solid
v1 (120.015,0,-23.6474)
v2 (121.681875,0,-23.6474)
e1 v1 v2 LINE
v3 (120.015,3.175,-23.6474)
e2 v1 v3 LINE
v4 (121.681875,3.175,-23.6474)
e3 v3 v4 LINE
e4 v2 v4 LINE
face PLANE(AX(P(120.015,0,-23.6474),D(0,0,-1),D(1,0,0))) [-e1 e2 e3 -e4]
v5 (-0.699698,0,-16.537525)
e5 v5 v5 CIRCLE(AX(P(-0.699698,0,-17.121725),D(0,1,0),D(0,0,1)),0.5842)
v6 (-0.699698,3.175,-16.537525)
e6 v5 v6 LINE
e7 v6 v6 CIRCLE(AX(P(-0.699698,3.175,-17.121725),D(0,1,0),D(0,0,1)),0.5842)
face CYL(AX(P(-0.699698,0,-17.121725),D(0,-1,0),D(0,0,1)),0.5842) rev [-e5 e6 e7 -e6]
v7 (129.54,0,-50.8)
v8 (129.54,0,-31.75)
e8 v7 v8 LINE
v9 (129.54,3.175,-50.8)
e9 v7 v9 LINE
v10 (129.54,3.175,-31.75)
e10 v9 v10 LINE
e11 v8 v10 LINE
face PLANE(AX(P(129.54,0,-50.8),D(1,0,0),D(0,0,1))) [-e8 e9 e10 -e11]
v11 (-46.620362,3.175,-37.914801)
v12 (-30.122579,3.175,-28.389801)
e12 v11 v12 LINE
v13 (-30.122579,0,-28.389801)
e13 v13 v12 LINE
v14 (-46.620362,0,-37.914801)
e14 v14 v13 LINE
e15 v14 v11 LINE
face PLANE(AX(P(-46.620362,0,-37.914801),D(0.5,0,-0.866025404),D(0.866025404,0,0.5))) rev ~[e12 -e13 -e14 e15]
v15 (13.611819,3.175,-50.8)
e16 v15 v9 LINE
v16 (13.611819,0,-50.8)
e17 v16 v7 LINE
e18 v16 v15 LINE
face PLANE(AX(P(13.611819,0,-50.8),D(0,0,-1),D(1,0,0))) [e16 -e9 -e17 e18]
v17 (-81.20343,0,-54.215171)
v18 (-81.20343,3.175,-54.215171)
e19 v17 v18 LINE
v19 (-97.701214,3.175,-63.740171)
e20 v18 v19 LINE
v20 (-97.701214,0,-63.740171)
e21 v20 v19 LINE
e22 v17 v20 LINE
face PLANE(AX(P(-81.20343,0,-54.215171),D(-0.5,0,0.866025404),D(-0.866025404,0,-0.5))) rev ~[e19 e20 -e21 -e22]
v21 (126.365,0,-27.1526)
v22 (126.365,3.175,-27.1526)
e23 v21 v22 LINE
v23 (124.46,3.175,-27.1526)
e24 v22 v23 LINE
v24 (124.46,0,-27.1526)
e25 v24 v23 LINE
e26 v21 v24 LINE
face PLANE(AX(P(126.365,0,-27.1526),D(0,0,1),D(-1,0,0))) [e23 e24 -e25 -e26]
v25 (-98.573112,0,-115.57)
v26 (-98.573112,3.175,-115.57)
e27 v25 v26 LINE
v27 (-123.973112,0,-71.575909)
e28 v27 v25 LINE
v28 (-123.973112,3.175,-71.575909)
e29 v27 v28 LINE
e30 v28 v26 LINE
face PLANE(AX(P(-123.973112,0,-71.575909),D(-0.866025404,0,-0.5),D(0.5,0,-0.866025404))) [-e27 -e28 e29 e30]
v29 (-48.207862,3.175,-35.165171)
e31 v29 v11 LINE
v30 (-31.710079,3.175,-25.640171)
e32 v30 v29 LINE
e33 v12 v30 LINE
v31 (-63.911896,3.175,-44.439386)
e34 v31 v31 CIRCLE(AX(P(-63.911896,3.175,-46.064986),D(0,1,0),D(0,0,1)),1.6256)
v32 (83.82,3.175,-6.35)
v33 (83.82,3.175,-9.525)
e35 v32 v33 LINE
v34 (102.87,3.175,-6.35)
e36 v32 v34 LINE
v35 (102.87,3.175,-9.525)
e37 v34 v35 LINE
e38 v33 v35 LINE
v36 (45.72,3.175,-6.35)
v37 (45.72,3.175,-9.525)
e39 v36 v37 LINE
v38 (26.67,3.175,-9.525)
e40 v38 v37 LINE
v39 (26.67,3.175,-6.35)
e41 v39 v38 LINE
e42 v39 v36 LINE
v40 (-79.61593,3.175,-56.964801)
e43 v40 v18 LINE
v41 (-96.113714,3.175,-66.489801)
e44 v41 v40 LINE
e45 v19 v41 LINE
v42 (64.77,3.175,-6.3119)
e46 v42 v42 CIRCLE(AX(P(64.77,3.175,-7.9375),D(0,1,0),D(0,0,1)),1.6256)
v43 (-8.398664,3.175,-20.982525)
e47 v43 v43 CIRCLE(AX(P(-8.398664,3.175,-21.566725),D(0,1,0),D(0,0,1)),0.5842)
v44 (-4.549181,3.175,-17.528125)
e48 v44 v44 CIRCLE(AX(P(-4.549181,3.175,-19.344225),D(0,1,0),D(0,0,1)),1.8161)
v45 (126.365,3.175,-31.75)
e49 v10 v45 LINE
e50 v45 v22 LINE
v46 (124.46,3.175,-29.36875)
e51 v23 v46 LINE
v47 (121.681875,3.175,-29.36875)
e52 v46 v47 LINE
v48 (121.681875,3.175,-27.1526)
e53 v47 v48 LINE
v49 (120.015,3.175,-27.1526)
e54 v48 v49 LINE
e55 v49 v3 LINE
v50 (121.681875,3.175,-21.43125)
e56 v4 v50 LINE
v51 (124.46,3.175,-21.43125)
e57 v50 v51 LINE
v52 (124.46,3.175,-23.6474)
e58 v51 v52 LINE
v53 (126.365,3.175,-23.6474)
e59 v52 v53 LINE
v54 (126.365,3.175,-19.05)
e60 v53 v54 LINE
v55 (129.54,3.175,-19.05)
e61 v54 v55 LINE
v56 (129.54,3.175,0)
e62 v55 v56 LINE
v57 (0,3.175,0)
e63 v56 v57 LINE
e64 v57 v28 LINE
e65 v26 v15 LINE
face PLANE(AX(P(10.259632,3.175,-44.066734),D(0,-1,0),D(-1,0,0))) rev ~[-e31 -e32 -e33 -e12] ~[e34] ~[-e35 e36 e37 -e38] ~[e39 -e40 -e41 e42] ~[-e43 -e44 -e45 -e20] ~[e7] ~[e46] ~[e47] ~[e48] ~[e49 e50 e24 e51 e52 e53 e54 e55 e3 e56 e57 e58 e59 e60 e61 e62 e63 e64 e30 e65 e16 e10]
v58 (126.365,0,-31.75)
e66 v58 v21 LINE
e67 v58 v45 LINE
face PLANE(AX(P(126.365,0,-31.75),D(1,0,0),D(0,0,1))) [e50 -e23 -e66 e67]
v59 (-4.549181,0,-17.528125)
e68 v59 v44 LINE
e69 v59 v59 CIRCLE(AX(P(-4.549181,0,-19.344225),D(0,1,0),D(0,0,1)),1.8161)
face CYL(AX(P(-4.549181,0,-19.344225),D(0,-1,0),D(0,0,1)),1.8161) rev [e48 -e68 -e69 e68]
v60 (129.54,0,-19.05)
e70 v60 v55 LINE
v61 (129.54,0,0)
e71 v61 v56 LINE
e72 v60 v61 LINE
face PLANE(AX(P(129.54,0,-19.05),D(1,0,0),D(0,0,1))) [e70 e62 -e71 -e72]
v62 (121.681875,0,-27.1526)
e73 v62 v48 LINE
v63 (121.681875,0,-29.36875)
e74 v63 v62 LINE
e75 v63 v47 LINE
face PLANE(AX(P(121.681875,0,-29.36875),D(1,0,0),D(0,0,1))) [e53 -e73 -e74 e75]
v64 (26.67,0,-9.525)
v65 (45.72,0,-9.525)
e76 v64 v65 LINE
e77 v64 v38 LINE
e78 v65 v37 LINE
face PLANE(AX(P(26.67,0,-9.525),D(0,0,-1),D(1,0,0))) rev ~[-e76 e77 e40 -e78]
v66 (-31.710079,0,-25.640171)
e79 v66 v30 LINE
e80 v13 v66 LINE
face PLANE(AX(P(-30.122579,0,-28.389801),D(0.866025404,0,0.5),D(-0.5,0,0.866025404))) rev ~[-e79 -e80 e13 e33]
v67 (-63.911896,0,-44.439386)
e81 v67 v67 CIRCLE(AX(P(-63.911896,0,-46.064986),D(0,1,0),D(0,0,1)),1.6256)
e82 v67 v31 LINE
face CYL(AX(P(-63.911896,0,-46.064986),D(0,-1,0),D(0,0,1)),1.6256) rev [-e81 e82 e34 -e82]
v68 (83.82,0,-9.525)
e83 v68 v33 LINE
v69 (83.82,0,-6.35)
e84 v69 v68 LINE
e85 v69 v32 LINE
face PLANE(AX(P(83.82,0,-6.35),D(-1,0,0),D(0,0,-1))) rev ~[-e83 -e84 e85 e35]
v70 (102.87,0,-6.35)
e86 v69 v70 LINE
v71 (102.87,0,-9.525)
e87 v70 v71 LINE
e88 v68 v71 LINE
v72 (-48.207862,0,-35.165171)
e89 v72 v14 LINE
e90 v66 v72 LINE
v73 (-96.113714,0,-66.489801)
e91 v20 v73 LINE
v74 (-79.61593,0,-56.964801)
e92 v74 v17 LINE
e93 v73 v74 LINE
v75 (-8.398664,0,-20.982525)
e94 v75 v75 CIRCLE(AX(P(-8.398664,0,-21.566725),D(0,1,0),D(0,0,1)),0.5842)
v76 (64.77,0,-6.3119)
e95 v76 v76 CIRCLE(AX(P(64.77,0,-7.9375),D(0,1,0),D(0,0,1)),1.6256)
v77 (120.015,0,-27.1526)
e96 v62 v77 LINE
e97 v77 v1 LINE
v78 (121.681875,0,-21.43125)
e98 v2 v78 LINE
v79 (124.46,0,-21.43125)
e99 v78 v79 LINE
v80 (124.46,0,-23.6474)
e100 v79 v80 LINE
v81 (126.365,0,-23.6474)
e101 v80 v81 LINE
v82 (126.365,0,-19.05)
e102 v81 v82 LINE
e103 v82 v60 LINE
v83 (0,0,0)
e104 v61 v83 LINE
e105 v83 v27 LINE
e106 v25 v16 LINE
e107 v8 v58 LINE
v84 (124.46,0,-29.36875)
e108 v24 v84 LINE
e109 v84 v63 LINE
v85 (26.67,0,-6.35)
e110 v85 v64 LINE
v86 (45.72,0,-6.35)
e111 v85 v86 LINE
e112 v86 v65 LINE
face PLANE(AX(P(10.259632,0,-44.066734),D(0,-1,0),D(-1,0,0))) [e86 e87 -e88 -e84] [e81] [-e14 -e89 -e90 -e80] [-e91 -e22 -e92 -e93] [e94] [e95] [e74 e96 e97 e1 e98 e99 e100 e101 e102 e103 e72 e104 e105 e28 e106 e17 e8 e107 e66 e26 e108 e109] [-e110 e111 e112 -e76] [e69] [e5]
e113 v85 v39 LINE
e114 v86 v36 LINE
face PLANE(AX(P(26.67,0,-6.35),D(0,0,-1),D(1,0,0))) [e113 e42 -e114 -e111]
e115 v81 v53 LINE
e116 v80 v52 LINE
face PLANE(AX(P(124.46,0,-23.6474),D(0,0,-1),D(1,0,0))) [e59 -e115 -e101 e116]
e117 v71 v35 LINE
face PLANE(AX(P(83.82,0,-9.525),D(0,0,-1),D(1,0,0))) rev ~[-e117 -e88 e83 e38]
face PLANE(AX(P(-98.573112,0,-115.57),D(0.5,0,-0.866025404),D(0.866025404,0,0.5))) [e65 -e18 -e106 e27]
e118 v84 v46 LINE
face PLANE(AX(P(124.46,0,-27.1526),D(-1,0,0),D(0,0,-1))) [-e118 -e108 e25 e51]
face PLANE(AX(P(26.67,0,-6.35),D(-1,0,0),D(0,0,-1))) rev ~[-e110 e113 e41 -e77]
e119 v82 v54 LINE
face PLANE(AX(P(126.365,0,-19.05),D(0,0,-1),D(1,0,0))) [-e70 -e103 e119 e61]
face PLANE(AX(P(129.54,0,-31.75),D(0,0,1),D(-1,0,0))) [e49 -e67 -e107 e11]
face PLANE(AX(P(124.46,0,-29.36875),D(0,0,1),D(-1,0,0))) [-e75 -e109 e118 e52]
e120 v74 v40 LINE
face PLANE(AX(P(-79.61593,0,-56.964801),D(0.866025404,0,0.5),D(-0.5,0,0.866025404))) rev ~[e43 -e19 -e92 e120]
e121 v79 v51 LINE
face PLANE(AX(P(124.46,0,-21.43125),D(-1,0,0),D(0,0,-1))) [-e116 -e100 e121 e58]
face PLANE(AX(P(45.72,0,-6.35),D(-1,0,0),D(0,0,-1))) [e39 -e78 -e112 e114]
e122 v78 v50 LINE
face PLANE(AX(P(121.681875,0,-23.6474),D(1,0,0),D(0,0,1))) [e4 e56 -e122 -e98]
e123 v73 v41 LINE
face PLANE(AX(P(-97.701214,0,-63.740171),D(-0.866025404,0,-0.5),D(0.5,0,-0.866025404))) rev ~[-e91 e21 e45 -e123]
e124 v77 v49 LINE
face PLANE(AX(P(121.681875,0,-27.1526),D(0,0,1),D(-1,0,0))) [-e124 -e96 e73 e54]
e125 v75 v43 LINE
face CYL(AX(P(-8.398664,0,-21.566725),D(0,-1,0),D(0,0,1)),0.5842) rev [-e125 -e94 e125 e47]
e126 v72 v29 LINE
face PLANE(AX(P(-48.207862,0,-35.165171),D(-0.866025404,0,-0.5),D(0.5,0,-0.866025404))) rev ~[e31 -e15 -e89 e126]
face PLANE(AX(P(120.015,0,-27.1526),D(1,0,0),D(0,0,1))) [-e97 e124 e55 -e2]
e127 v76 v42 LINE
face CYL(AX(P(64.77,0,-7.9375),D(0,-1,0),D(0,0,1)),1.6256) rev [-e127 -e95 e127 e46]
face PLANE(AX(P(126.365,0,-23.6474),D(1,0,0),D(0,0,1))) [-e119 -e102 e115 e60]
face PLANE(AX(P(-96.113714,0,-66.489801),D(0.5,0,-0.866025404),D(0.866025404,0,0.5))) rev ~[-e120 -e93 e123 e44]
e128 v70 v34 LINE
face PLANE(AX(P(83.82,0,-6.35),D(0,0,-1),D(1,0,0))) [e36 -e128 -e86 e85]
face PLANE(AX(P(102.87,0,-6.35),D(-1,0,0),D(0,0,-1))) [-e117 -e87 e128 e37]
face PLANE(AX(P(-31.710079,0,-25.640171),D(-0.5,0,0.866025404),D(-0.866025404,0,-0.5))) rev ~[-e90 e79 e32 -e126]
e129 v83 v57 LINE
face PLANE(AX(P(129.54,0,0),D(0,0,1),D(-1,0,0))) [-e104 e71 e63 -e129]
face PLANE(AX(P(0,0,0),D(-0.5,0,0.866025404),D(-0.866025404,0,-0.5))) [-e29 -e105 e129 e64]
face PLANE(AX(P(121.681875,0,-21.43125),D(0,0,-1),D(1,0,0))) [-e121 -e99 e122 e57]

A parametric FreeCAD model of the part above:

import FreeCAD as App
import Part
import Sketcher
Q = App.Units.Quantity

doc = App.newDocument("Part")
body = doc.addObject("PartDesign::Body", "Body")

# Sketch on XZ plane
sketch1 = body.newObject("Sketcher::SketchObject", "Sketch")
sketch1.AttachmentSupport = (doc.getObject("XZ_Plane"), [""])
sketch1.MapMode = "FlatFace"
sketch1.addGeometry(Part.LineSegment(App.Vector(129.5, -50.8, 0), App.Vector(13.6, -50.8, 0)), False)
sketch1.addGeometry(Part.LineSegment(App.Vector(13.6, -50.8, 0), App.Vector(-98.6, -115.6, 0)), False)
sketch1.addGeometry(Part.LineSegment(App.Vector(-98.6, -115.6, 0), App.Vector(-124, -71.6, 0)), False)
sketch1.addGeometry(Part.LineSegment(App.Vector(-124, -71.6, 0), App.Vector(0, 0, 0)), False)
sketch1.addGeometry(Part.LineSegment(App.Vector(0, 0, 0), App.Vector(129.5, 0, 0)), False)
sketch1.addGeometry(Part.LineSegment(App.Vector(129.5, 0, 0), App.Vector(129.5, -19.1, 0)), False)
sketch1.addGeometry(Part.LineSegment(App.Vector(129.5, -19.1, 0), App.Vector(126.4, -19.1, 0)), False)
sketch1.addGeometry(Part.LineSegment(App.Vector(126.4, -19.1, 0), App.Vector(126.4, -23.6, 0)), False)
sketch1.addGeometry(Part.LineSegment(App.Vector(126.4, -23.6, 0), App.Vector(124.5, -23.6, 0)), False)
sketch1.addGeometry(Part.LineSegment(App.Vector(124.5, -23.6, 0), App.Vector(124.5, -21.4, 0)), False)
sketch1.addGeometry(Part.LineSegment(App.Vector(124.5, -21.4, 0), App.Vector(121.7, -21.4, 0)), False)
sketch1.addGeometry(Part.LineSegment(App.Vector(121.7, -21.4, 0), App.Vector(121.7, -23.6, 0)), False)
sketch1.addGeometry(Part.LineSegment(App.Vector(121.7, -23.6, 0), App.Vector(120, -23.6, 0)), False)
sketch1.addGeometry(Part.LineSegment(App.Vector(120, -23.6, 0), App.Vector(120, -27.2, 0)), False)
sketch1.addGeometry(Part.LineSegment(App.Vector(120, -27.2, 0), App.Vector(121.7, -27.2, 0)), False)
sketch1.addGeometry(Part.LineSegment(App.Vector(121.7, -27.2, 0), App.Vector(121.7, -29.4, 0)), False)
sketch1.addGeometry(Part.LineSegment(App.Vector(121.7, -29.4, 0), App.Vector(124.5, -29.4, 0)), False)
sketch1.addGeometry(Part.LineSegment(App.Vector(124.5, -29.4, 0), App.Vector(124.5, -27.2, 0)), False)
sketch1.addGeometry(Part.LineSegment(App.Vector(124.5, -27.2, 0), App.Vector(126.4, -27.2, 0)), False)
sketch1.addGeometry(Part.LineSegment(App.Vector(126.4, -27.2, 0), App.Vector(126.4, -31.8, 0)), False)
sketch1.addGeometry(Part.LineSegment(App.Vector(126.4, -31.8, 0), App.Vector(129.5, -31.8, 0)), False)
sketch1.addGeometry(Part.LineSegment(App.Vector(129.5, -31.8, 0), App.Vector(129.5, -50.8, 0)), False)
sketch1.addGeometry(Part.LineSegment(App.Vector(83.8, -6.3, 0), App.Vector(83.8, -9.5, 0)), False)
sketch1.addGeometry(Part.LineSegment(App.Vector(83.8, -9.5, 0), App.Vector(102.9, -9.5, 0)), False)
sketch1.addGeometry(Part.LineSegment(App.Vector(102.9, -9.5, 0), App.Vector(102.9, -6.3, 0)), False)
sketch1.addGeometry(Part.LineSegment(App.Vector(102.9, -6.3, 0), App.Vector(83.8, -6.3, 0)), False)
sketch1.addGeometry(Part.Circle(App.Vector(64.8, -7.9, 0), App.Vector(0, 0, 1), 1.6), False)
sketch1.addGeometry(Part.LineSegment(App.Vector(26.7, -6.3, 0), App.Vector(26.7, -9.5, 0)), False)
sketch1.addGeometry(Part.LineSegment(App.Vector(26.7, -9.5, 0), App.Vector(45.7, -9.5, 0)), False)
sketch1.addGeometry(Part.LineSegment(App.Vector(45.7, -9.5, 0), App.Vector(45.7, -6.3, 0)), False)
sketch1.addGeometry(Part.LineSegment(App.Vector(45.7, -6.3, 0), App.Vector(26.7, -6.3, 0)), False)
sketch1.addGeometry(Part.Circle(App.Vector(-0.7, -17.1, 0), App.Vector(0, 0, 1), 0.6), False)
sketch1.addGeometry(Part.Circle(App.Vector(-4.5, -19.3, 0), App.Vector(0, 0, 1), 1.8), False)
sketch1.addGeometry(Part.Circle(App.Vector(-8.4, -21.6, 0), App.Vector(0, 0, 1), 0.6), False)
sketch1.addGeometry(Part.LineSegment(App.Vector(-46.6, -37.9, 0), App.Vector(-30.1, -28.4, 0)), False)
sketch1.addGeometry(Part.LineSegment(App.Vector(-30.1, -28.4, 0), App.Vector(-31.7, -25.6, 0)), False)
sketch1.addGeometry(Part.LineSegment(App.Vector(-31.7, -25.6, 0), App.Vector(-48.2, -35.2, 0)), False)
sketch1.addGeometry(Part.LineSegment(App.Vector(-48.2, -35.2, 0), App.Vector(-46.6, -37.9, 0)), False)
sketch1.addGeometry(Part.Circle(App.Vector(-63.9, -46.1, 0), App.Vector(0, 0, 1), 1.6), False)
sketch1.addGeometry(Part.LineSegment(App.Vector(-96.1, -66.5, 0), App.Vector(-79.6, -57, 0)), False)
sketch1.addGeometry(Part.LineSegment(App.Vector(-79.6, -57, 0), App.Vector(-81.2, -54.2, 0)), False)
sketch1.addGeometry(Part.LineSegment(App.Vector(-81.2, -54.2, 0), App.Vector(-97.7, -63.7, 0)), False)
sketch1.addGeometry(Part.LineSegment(App.Vector(-97.7, -63.7, 0), App.Vector(-96.1, -66.5, 0)), False)
sketch1.addConstraint(Sketcher.Constraint("Coincident", 0, 2, 1, 1))
sketch1.addConstraint(Sketcher.Constraint("Coincident", 1, 2, 2, 1))
sketch1.addConstraint(Sketcher.Constraint("Coincident", 2, 2, 3, 1))
sketch1.addConstraint(Sketcher.Constraint("Coincident", 3, 2, 4, 1))
sketch1.addConstraint(Sketcher.Constraint("Coincident", 4, 2, 5, 1))
sketch1.addConstraint(Sketcher.Constraint("Coincident", 5, 2, 6, 1))
sketch1.addConstraint(Sketcher.Constraint("Coincident", 6, 2, 7, 1))
sketch1.addConstraint(Sketcher.Constraint("Coincident", 7, 2, 8, 1))
sketch1.addConstraint(Sketcher.Constraint("Coincident", 8, 2, 9, 1))
sketch1.addConstraint(Sketcher.Constraint("Coincident", 9, 2, 10, 1))
sketch1.addConstraint(Sketcher.Constraint("Coincident", 10, 2, 11, 1))
sketch1.addConstraint(Sketcher.Constraint("Coincident", 11, 2, 12, 1))
sketch1.addConstraint(Sketcher.Constraint("Coincident", 12, 2, 13, 1))
sketch1.addConstraint(Sketcher.Constraint("Coincident", 13, 2, 14, 1))
sketch1.addConstraint(Sketcher.Constraint("Coincident", 14, 2, 15, 1))
sketch1.addConstraint(Sketcher.Constraint("Coincident", 15, 2, 16, 1))
sketch1.addConstraint(Sketcher.Constraint("Coincident", 16, 2, 17, 1))
sketch1.addConstraint(Sketcher.Constraint("Coincident", 17, 2, 18, 1))
sketch1.addConstraint(Sketcher.Constraint("Coincident", 18, 2, 19, 1))
sketch1.addConstraint(Sketcher.Constraint("Coincident", 19, 2, 20, 1))
sketch1.addConstraint(Sketcher.Constraint("Coincident", 20, 2, 21, 1))
sketch1.addConstraint(Sketcher.Constraint("Coincident", 21, 2, 0, 1))
sketch1.addConstraint(Sketcher.Constraint("Coincident", 22, 2, 23, 1))
sketch1.addConstraint(Sketcher.Constraint("Coincident", 23, 2, 24, 1))
sketch1.addConstraint(Sketcher.Constraint("Coincident", 24, 2, 25, 1))
sketch1.addConstraint(Sketcher.Constraint("Coincident", 25, 2, 22, 1))
sketch1.addConstraint(Sketcher.Constraint("Coincident", 27, 2, 28, 1))
sketch1.addConstraint(Sketcher.Constraint("Coincident", 28, 2, 29, 1))
sketch1.addConstraint(Sketcher.Constraint("Coincident", 29, 2, 30, 1))
sketch1.addConstraint(Sketcher.Constraint("Coincident", 30, 2, 27, 1))
sketch1.addConstraint(Sketcher.Constraint("Coincident", 34, 2, 35, 1))
sketch1.addConstraint(Sketcher.Constraint("Coincident", 35, 2, 36, 1))
sketch1.addConstraint(Sketcher.Constraint("Coincident", 36, 2, 37, 1))
sketch1.addConstraint(Sketcher.Constraint("Coincident", 37, 2, 34, 1))
sketch1.addConstraint(Sketcher.Constraint("Coincident", 39, 2, 40, 1))
sketch1.addConstraint(Sketcher.Constraint("Coincident", 40, 2, 41, 1))
sketch1.addConstraint(Sketcher.Constraint("Coincident", 41, 2, 42, 1))
sketch1.addConstraint(Sketcher.Constraint("Coincident", 42, 2, 39, 1))
sketch1.addConstraint(Sketcher.Constraint("Horizontal", 0))
sketch1.addConstraint(Sketcher.Constraint("Horizontal", 4))
sketch1.addConstraint(Sketcher.Constraint("Vertical", 5))
sketch1.addConstraint(Sketcher.Constraint("Horizontal", 6))
sketch1.addConstraint(Sketcher.Constraint("Vertical", 7))
sketch1.addConstraint(Sketcher.Constraint("Horizontal", 8))
sketch1.addConstraint(Sketcher.Constraint("Vertical", 9))
sketch1.addConstraint(Sketcher.Constraint("Horizontal", 10))
sketch1.addConstraint(Sketcher.Constraint("Vertical", 11))
sketch1.addConstraint(Sketcher.Constraint("Horizontal", 12))
sketch1.addConstraint(Sketcher.Constraint("Vertical", 13))
sketch1.addConstraint(Sketcher.Constraint("Horizontal", 14))
sketch1.addConstraint(Sketcher.Constraint("Vertical", 15))
sketch1.addConstraint(Sketcher.Constraint("Horizontal", 16))
sketch1.addConstraint(Sketcher.Constraint("Vertical", 17))
sketch1.addConstraint(Sketcher.Constraint("Horizontal", 18))
sketch1.addConstraint(Sketcher.Constraint("Vertical", 19))
sketch1.addConstraint(Sketcher.Constraint("Horizontal", 20))
sketch1.addConstraint(Sketcher.Constraint("Vertical", 21))
sketch1.addConstraint(Sketcher.Constraint("Vertical", 22))
sketch1.addConstraint(Sketcher.Constraint("Horizontal", 23))
sketch1.addConstraint(Sketcher.Constraint("Vertical", 24))
sketch1.addConstraint(Sketcher.Constraint("Horizontal", 25))
sketch1.addConstraint(Sketcher.Constraint("Vertical", 27))
sketch1.addConstraint(Sketcher.Constraint("Horizontal", 28))
sketch1.addConstraint(Sketcher.Constraint("Vertical", 29))
sketch1.addConstraint(Sketcher.Constraint("Horizontal", 30))
sketch1.addConstraint(Sketcher.Constraint("Coincident", 3, 2, -1, 1))
sketch1.addConstraint(Sketcher.Constraint("Equal", 31, 33))
sketch1.addConstraint(Sketcher.Constraint("Equal", 26, 38))
sketch1.addConstraint(Sketcher.Constraint("Perpendicular", 1, 2))
sketch1.addConstraint(Sketcher.Constraint("Perpendicular", 2, 3))
sketch1.addConstraint(Sketcher.Constraint("Parallel", 3, 34))
sketch1.addConstraint(Sketcher.Constraint("Perpendicular", 34, 35))
sketch1.addConstraint(Sketcher.Constraint("Perpendicular", 35, 36))
sketch1.addConstraint(Sketcher.Constraint("Perpendicular", 36, 37))
sketch1.addConstraint(Sketcher.Constraint("Perpendicular", 37, 39))
sketch1.addConstraint(Sketcher.Constraint("Perpendicular", 39, 40))
sketch1.addConstraint(Sketcher.Constraint("Perpendicular", 40, 41))
sketch1.addConstraint(Sketcher.Constraint("Perpendicular", 41, 42))
sketch1.addConstraint(Sketcher.Constraint("Horizontal", 8, 2, 11, 2))
sketch1.addConstraint(Sketcher.Constraint("Horizontal", 14, 2, 17, 2))
sketch1.addConstraint(Sketcher.Constraint("Horizontal", 23, 2, 27, 2))
sketch1.addConstraint(Sketcher.Constraint("Horizontal", 25, 2, 29, 2))
sketch1.addConstraint(Sketcher.Constraint("Vertical", 11, 2, 14, 2))
sketch1.addConstraint(Sketcher.Constraint("Vertical", 9, 2, 16, 2))
sketch1.addConstraint(Sketcher.Constraint("Vertical", 7, 2, 18, 2))
sketch1.addConstraint(Sketcher.Constraint("Vertical", 5, 2, 20, 2))
sketch1.addConstraint(Sketcher.Constraint("Equal", 25, 28))
sketch1.addConstraint(Sketcher.Constraint("Equal", 30, 5))
sketch1.addConstraint(Sketcher.Constraint("Equal", 11, 15))
sketch1.addConstraint(Sketcher.Constraint("Equal", 7, 19))
sketch1.addConstraint(Sketcher.Constraint("Equal", 5, 21))
sketch1.addConstraint(Sketcher.Constraint("Equal", 20, 22))
sketch1.addConstraint(Sketcher.Constraint("Equal", 36, 39))
sketch1.addConstraint(Sketcher.Constraint("Equal", 37, 40))
sketch1.addConstraint(Sketcher.Constraint("Distance", 2, Q("2 in")))
sketch1.addConstraint(Sketcher.Constraint("Diameter", 26, Q("0.128 in")))
sketch1.addConstraint(Sketcher.Constraint("Diameter", 31, Q("0.046 in")))
sketch1.addConstraint(Sketcher.Constraint("Diameter", 32, Q("0.143 in")))
sketch1.addConstraint(Sketcher.Constraint("DistanceX", 4, 1, 4, 2, Q("5.1 in")))
sketch1.addConstraint(Sketcher.Constraint("DistanceY", 0, 2, -1, 1, Q("2 in")))
sketch1.addConstraint(Sketcher.Constraint("Angle", 1, Q("-150 deg")))
sketch1.addConstraint(Sketcher.Constraint("Distance", 1, Q("5.1 in")))
sketch1.addConstraint(Sketcher.Constraint("DistanceX", 23, 1, 23, 2, Q("0.75 in")))
sketch1.addConstraint(Sketcher.Constraint("DistanceX", -1, 1, 8, 2, Q("4.9 in")))
sketch1.addConstraint(Sketcher.Constraint("DistanceX", -1, 1, 22, 2, Q("3.3 in")))
sketch1.addConstraint(Sketcher.Constraint("DistanceX", -1, 1, 28, 2, Q("1.8 in")))
sketch1.addConstraint(Sketcher.Constraint("DistanceX", 27, 2, 26, 3, Q("1.5 in")))
sketch1.addConstraint(Sketcher.Constraint("Distance", 34, Q("0.75 in")))
sketch1.addConstraint(Sketcher.Constraint("DistanceX", 6, 2, 6, 1, Q("0.125 in")))
sketch1.addConstraint(Sketcher.Constraint("DistanceX", 10, 2, 10, 1, Q("0.109375 in")))
sketch1.addConstraint(Sketcher.Constraint("DistanceY", 7, 2, 7, 1, Q("0.181 in")))
sketch1.addConstraint(Sketcher.Constraint("DistanceY", 24, 2, -1, 1, Q("0.25 in")))
sketch1.addConstraint(Sketcher.Constraint("DistanceX", 12, 2, 7, 2, Q("0.25 in")))
sketch1.addConstraint(Sketcher.Constraint("DistanceY", 39, 2, 37, 2, Q("0.75 in")))
sketch1.addConstraint(Sketcher.Constraint("Distance", 35, Q("0.125 in")))
sketch1.addConstraint(Sketcher.Constraint("DistanceY", 26, 3, -1, 1, Q("0.3125 in")))
sketch1.addConstraint(Sketcher.Constraint("DistanceY", 9, 2, -1, 1, Q("0.84375 in")))
sketch1.addConstraint(Sketcher.Constraint("DistanceY", 33, 3, 31, 3, Q("0.175 in")))
sketch1.addConstraint(Sketcher.Constraint("DistanceX", 32, 3, 0, 2, Q("0.715 in")))
sketch1.addConstraint(Sketcher.Constraint("DistanceY", 32, 3, 31, 3, Q("0.0875 in")))
sketch1.addConstraint(Sketcher.Constraint("DistanceX", 31, 3, -1, 1, Q("0.699698 mm")))
sketch1.addConstraint(Sketcher.Constraint("DistanceY", 34, 2, -1, 1, Q("28.389801 mm")))
sketch1.addConstraint(Sketcher.Constraint("DistanceX", 38, 3, 31, 3, Q("63.212198 mm")))
sketch1.addConstraint(Sketcher.Constraint("DistanceX", 36, 2, 33, 3, Q("39.809199 mm")))
sketch1.addConstraint(Sketcher.Constraint("DistanceX", 34, 2, -1, 1, Q("30.122579 mm")))
sketch1.addConstraint(Sketcher.Constraint("DistanceX", 39, 2, -1, 1, Q("79.61593 mm")))
sketch1.addConstraint(Sketcher.Constraint("DistanceY", 38, 3, 33, 3, Q("24.498261 mm")))
sketch1.addConstraint(Sketcher.Constraint("DistanceY", 31, 3, -1, 1, Q("17.121725 mm")))
pad1 = body.newObject("PartDesign::Pad", "Pad")
pad1.Profile = sketch1
pad1.Length = Q("0.125 in")
pad1.Reversed = True

doc.recompute()
